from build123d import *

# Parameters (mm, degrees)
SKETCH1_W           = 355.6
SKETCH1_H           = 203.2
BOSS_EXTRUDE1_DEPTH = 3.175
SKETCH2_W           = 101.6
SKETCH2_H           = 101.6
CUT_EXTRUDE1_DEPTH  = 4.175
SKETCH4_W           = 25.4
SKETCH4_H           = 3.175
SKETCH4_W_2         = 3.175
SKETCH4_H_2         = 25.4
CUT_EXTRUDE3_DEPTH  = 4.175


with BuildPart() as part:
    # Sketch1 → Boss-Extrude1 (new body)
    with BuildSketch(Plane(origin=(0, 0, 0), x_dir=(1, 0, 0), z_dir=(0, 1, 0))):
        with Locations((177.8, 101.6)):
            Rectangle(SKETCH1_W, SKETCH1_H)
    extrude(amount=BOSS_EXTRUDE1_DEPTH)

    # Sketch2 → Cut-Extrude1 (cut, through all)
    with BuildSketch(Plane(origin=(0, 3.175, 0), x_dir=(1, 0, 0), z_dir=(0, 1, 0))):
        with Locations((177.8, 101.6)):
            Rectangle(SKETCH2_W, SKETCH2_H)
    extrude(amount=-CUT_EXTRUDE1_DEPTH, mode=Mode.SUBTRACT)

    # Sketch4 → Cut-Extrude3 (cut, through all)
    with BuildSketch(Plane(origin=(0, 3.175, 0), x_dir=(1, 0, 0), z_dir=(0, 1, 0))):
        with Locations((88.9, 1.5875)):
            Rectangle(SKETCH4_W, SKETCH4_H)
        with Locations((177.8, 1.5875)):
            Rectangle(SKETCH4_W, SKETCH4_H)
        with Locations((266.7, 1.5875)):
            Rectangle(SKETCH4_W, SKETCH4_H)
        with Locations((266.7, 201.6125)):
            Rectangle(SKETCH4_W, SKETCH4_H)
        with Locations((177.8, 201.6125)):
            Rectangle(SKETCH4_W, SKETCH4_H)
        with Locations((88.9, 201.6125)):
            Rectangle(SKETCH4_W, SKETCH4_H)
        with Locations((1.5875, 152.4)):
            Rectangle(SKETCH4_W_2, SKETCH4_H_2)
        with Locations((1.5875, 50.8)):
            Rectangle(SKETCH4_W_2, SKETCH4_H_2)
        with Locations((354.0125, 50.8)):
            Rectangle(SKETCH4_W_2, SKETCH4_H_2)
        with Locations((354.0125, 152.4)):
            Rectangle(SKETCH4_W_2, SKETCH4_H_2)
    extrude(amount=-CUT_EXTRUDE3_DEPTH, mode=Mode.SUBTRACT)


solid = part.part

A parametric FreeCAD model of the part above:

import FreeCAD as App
import Part
import Sketcher
from FreeCAD import Vector
Q = App.Units.Quantity


def add_polygon(sketch, points):
    """Adds a closed chain of lines whose ends are joined by coincident constraints."""
    first, n = sketch.GeometryCount, len(points)
    for a, b in zip(points, points[1:] + points[:1]):
        sketch.addGeometry(Part.LineSegment(App.Vector(*a, 0), App.Vector(*b, 0)), False)
    for i in range(n):
        sketch.addConstraint(Sketcher.Constraint("Coincident", first + i, 2, first + (i + 1) % n, 1))

doc = App.newDocument("Part")
body = doc.addObject("PartDesign::Body", "Body")

# Sketch on XZ plane
sketch1 = doc.addObject("Sketcher::SketchObject", "Sketch")
body.addObject(sketch1)
sketch1.AttachmentSupport = (doc.XZ_Plane, [""])
sketch1.MapMode = "FlatFace"
add_polygon(sketch1, [(0, -203), (0, 0), (356, 0), (356, -203)])  # lines 0-3
sketch1.addConstraint(Sketcher.Constraint("Vertical", 0))
sketch1.addConstraint(Sketcher.Constraint("Horizontal", 1))
sketch1.addConstraint(Sketcher.Constraint("Vertical", 2))
sketch1.addConstraint(Sketcher.Constraint("Horizontal", 3))
sketch1.addConstraint(Sketcher.Constraint("Coincident", 0, 2, -1, 1))
sketch1.addConstraint(Sketcher.Constraint("DistanceX", 1, 1, 1, 2, Q("14 in")))
sketch1.addConstraint(Sketcher.Constraint("DistanceY", 0, 1, 0, 2, Q("8 in")))
pad1 = doc.addObject("PartDesign::Pad", "Pad")
body.addObject(pad1)
pad1.Profile = sketch1
pad1.Length = Q("0.125 in")
pad1.Reversed = True

# Sketch on XZ plane
sketch2 = doc.addObject("Sketcher::SketchObject", "Sketch001")
body.addObject(sketch2)
sketch2.AttachmentSupport = (doc.XZ_Plane, [""])
sketch2.MapMode = "FlatFace"
sketch2.AttachmentOffset = App.Placement(Vector(0, 0, -0.125 * 25.4), App.Rotation())
add_polygon(sketch2, [(127, -152), (127, -51), (229, -51), (229, -152)])  # lines 0-3
sketch2.addConstraint(Sketcher.Constraint("Vertical", 0))
sketch2.addConstraint(Sketcher.Constraint("Horizontal", 1))
sketch2.addConstraint(Sketcher.Constraint("Vertical", 2))
sketch2.addConstraint(Sketcher.Constraint("Horizontal", 3))
sketch2.addConstraint(Sketcher.Constraint("Equal", 3, 0))
sketch2.addConstraint(Sketcher.Constraint("DistanceX", 1, 1, 1, 2, Q("4 in")))
sketch2.addConstraint(Sketcher.Constraint("DistanceX", -1, 1, 0, 2, Q("5 in")))
sketch2.addConstraint(Sketcher.Constraint("DistanceY", 0, 2, -1, 1, Q("2 in")))
pocket1 = doc.addObject("PartDesign::Pocket", "Pocket")
body.addObject(pocket1)
pocket1.Profile = sketch2
pocket1.Type = "ThroughAll"
pocket1.Reversed = True

# Sketch on XZ plane
sketch3 = doc.addObject("Sketcher::SketchObject", "Sketch002")
body.addObject(sketch3)
sketch3.AttachmentSupport = (doc.XZ_Plane, [""])
sketch3.MapMode = "FlatFace"
sketch3.AttachmentOffset = App.Placement(Vector(0, 0, -0.125 * 25.4), App.Rotation())
add_polygon(sketch3, [(76.2, -3.2), (76.2, 0), (101.6, 0), (101.6, -3.2)])  # lines 0-3
add_polygon(sketch3, [(165.1, -3.2), (165.1, 0), (190.5, 0), (190.5, -3.2)])  # lines 4-7
add_polygon(sketch3, [(254, -3.2), (254, 0), (279.4, 0), (279.4, -3.2)])  # lines 8-11
add_polygon(sketch3, [(254, -203.2), (254, -200), (279.4, -200), (279.4, -203.2)])  # lines 12-15
add_polygon(sketch3, [(165.1, -203.2), (165.1, -200), (190.5, -200), (190.5, -203.2)])  # lines 16-19
add_polygon(sketch3, [(76.2, -203.2), (76.2, -200), (101.6, -200), (101.6, -203.2)])  # lines 20-23
add_polygon(sketch3, [(0, -165.1), (0, -139.7), (3.2, -139.7), (3.2, -165.1)])  # lines 24-27
add_polygon(sketch3, [(0, -63.5), (0, -38.1), (3.2, -38.1), (3.2, -63.5)])  # lines 28-31
add_polygon(sketch3, [(352.4, -63.5), (352.4, -38.1), (355.6, -38.1), (355.6, -63.5)])  # lines 32-35
add_polygon(sketch3, [(352.4, -165.1), (352.4, -139.7), (355.6, -139.7), (355.6, -165.1)])  # lines 36-39
sketch3.addConstraint(Sketcher.Constraint("Vertical", 0))
sketch3.addConstraint(Sketcher.Constraint("Horizontal", 1))
sketch3.addConstraint(Sketcher.Constraint("Vertical", 2))
sketch3.addConstraint(Sketcher.Constraint("Horizontal", 3))
sketch3.addConstraint(Sketcher.Constraint("Vertical", 4))
sketch3.addConstraint(Sketcher.Constraint("Horizontal", 5))
sketch3.addConstraint(Sketcher.Constraint("Vertical", 6))
sketch3.addConstraint(Sketcher.Constraint("Horizontal", 7))
sketch3.addConstraint(Sketcher.Constraint("Vertical", 8))
sketch3.addConstraint(Sketcher.Constraint("Horizontal", 9))
sketch3.addConstraint(Sketcher.Constraint("Vertical", 10))
sketch3.addConstraint(Sketcher.Constraint("Horizontal", 11))
sketch3.addConstraint(Sketcher.Constraint("Vertical", 12))
sketch3.addConstraint(Sketcher.Constraint("Horizontal", 13))
sketch3.addConstraint(Sketcher.Constraint("Vertical", 14))
sketch3.addConstraint(Sketcher.Constraint("Horizontal", 15))
sketch3.addConstraint(Sketcher.Constraint("Vertical", 16))
sketch3.addConstraint(Sketcher.Constraint("Horizontal", 17))
sketch3.addConstraint(Sketcher.Constraint("Vertical", 18))
sketch3.addConstraint(Sketcher.Constraint("Horizontal", 19))
sketch3.addConstraint(Sketcher.Constraint("Vertical", 20))
sketch3.addConstraint(Sketcher.Constraint("Horizontal", 21))
sketch3.addConstraint(Sketcher.Constraint("Vertical", 22))
sketch3.addConstraint(Sketcher.Constraint("Horizontal", 23))
sketch3.addConstraint(Sketcher.Constraint("Vertical", 24))
sketch3.addConstraint(Sketcher.Constraint("Horizontal", 25))
sketch3.addConstraint(Sketcher.Constraint("Vertical", 26))
sketch3.addConstraint(Sketcher.Constraint("Horizontal", 27))
sketch3.addConstraint(Sketcher.Constraint("Vertical", 28))
sketch3.addConstraint(Sketcher.Constraint("Horizontal", 29))
sketch3.addConstraint(Sketcher.Constraint("Vertical", 30))
sketch3.addConstraint(Sketcher.Constraint("Horizontal", 31))
sketch3.addConstraint(Sketcher.Constraint("Vertical", 32))
sketch3.addConstraint(Sketcher.Constraint("Horizontal", 33))
sketch3.addConstraint(Sketcher.Constraint("Vertical", 34))
sketch3.addConstraint(Sketcher.Constraint("Horizontal", 35))
sketch3.addConstraint(Sketcher.Constraint("Vertical", 36))
sketch3.addConstraint(Sketcher.Constraint("Horizontal", 37))
sketch3.addConstraint(Sketcher.Constraint("Vertical", 38))
sketch3.addConstraint(Sketcher.Constraint("Horizontal", 39))
sketch3.addConstraint(Sketcher.Constraint("PointOnObject", 0, 2, -1))
sketch3.addConstraint(Sketcher.Constraint("PointOnObject", 4, 2, -1))
sketch3.addConstraint(Sketcher.Constraint("PointOnObject", 8, 2, -1))
sketch3.addConstraint(Sketcher.Constraint("PointOnObject", 24, 2, -2))
sketch3.addConstraint(Sketcher.Constraint("PointOnObject", 28, 2, -2))
sketch3.addConstraint(Sketcher.Constraint("Horizontal", 3, 2, 6, 2))
sketch3.addConstraint(Sketcher.Constraint("Horizontal", 7, 2, 10, 2))
sketch3.addConstraint(Sketcher.Constraint("Horizontal", 13, 2, 16, 2))
sketch3.addConstraint(Sketcher.Constraint("Horizontal", 15, 2, 18, 2))
sketch3.addConstraint(Sketcher.Constraint("Horizontal", 17, 2, 20, 2))
sketch3.addConstraint(Sketcher.Constraint("Horizontal", 19, 2, 22, 2))
sketch3.addConstraint(Sketcher.Constraint("Horizontal", 29, 2, 32, 2))
sketch3.addConstraint(Sketcher.Constraint("Horizontal", 31, 2, 34, 2))
sketch3.addConstraint(Sketcher.Constraint("Horizontal", 25, 2, 36, 2))
sketch3.addConstraint(Sketcher.Constraint("Horizontal", 27, 2, 38, 2))
sketch3.addConstraint(Sketcher.Constraint("Vertical", 11, 2, 12, 2))
sketch3.addConstraint(Sketcher.Constraint("Vertical", 10, 2, 13, 2))
sketch3.addConstraint(Sketcher.Constraint("Vertical", 7, 2, 16, 2))
sketch3.addConstraint(Sketcher.Constraint("Vertical", 6, 2, 17, 2))
sketch3.addConstraint(Sketcher.Constraint("Vertical", 3, 2, 20, 2))
sketch3.addConstraint(Sketcher.Constraint("Vertical", 2, 2, 21, 2))
sketch3.addConstraint(Sketcher.Constraint("Vertical", 26, 2, 29, 2))
sketch3.addConstraint(Sketcher.Constraint("Vertical", 35, 2, 36, 2))
sketch3.addConstraint(Sketcher.Constraint("Vertical", 34, 2, 37, 2))
sketch3.addConstraint(Sketcher.Constraint("Equal", 3, 5))
sketch3.addConstraint(Sketcher.Constraint("Equal", 7, 9))
sketch3.addConstraint(Sketcher.Constraint("Equal", 31, 33))
sketch3.addConstraint(Sketcher.Constraint("Equal", 39, 0))
sketch3.addConstraint(Sketcher.Constraint("Equal", 10, 12))
sketch3.addConstraint(Sketcher.Constraint("Equal", 23, 24))
sketch3.addConstraint(Sketcher.Constraint("Equal", 26, 28))
sketch3.addConstraint(Sketcher.Constraint("DistanceX", 1, 1, 1, 2, Q("1 in")))
sketch3.addConstraint(Sketcher.Constraint("DistanceX", -1, 1, 0, 2, Q("3 in")))
sketch3.addConstraint(Sketcher.Constraint("DistanceX", -1, 1, 8, 2, Q("10 in")))
sketch3.addConstraint(Sketcher.Constraint("DistanceY", 14, 2, -1, 1, Q("8 in")))
sketch3.addConstraint(Sketcher.Constraint("DistanceX", -1, 1, 33, 2, Q("14 in")))
sketch3.addConstraint(Sketcher.Constraint("DistanceY", 24, 2, 28, 2, Q("4 in")))
sketch3.addConstraint(Sketcher.Constraint("DistanceX", -1, 1, 4, 2, Q("6.5 in")))
sketch3.addConstraint(Sketcher.Constraint("DistanceY", 24, 2, -1, 1, Q("5.5 in")))
sketch3.addConstraint(Sketcher.Constraint("DistanceX", 25, 1, 25, 2, Q("0.125 in")))
pocket2 = doc.addObject("PartDesign::Pocket", "Pocket001")
body.addObject(pocket2)
pocket2.Profile = sketch3
pocket2.Type = "ThroughAll"
pocket2.Reversed = True

doc.recompute()
